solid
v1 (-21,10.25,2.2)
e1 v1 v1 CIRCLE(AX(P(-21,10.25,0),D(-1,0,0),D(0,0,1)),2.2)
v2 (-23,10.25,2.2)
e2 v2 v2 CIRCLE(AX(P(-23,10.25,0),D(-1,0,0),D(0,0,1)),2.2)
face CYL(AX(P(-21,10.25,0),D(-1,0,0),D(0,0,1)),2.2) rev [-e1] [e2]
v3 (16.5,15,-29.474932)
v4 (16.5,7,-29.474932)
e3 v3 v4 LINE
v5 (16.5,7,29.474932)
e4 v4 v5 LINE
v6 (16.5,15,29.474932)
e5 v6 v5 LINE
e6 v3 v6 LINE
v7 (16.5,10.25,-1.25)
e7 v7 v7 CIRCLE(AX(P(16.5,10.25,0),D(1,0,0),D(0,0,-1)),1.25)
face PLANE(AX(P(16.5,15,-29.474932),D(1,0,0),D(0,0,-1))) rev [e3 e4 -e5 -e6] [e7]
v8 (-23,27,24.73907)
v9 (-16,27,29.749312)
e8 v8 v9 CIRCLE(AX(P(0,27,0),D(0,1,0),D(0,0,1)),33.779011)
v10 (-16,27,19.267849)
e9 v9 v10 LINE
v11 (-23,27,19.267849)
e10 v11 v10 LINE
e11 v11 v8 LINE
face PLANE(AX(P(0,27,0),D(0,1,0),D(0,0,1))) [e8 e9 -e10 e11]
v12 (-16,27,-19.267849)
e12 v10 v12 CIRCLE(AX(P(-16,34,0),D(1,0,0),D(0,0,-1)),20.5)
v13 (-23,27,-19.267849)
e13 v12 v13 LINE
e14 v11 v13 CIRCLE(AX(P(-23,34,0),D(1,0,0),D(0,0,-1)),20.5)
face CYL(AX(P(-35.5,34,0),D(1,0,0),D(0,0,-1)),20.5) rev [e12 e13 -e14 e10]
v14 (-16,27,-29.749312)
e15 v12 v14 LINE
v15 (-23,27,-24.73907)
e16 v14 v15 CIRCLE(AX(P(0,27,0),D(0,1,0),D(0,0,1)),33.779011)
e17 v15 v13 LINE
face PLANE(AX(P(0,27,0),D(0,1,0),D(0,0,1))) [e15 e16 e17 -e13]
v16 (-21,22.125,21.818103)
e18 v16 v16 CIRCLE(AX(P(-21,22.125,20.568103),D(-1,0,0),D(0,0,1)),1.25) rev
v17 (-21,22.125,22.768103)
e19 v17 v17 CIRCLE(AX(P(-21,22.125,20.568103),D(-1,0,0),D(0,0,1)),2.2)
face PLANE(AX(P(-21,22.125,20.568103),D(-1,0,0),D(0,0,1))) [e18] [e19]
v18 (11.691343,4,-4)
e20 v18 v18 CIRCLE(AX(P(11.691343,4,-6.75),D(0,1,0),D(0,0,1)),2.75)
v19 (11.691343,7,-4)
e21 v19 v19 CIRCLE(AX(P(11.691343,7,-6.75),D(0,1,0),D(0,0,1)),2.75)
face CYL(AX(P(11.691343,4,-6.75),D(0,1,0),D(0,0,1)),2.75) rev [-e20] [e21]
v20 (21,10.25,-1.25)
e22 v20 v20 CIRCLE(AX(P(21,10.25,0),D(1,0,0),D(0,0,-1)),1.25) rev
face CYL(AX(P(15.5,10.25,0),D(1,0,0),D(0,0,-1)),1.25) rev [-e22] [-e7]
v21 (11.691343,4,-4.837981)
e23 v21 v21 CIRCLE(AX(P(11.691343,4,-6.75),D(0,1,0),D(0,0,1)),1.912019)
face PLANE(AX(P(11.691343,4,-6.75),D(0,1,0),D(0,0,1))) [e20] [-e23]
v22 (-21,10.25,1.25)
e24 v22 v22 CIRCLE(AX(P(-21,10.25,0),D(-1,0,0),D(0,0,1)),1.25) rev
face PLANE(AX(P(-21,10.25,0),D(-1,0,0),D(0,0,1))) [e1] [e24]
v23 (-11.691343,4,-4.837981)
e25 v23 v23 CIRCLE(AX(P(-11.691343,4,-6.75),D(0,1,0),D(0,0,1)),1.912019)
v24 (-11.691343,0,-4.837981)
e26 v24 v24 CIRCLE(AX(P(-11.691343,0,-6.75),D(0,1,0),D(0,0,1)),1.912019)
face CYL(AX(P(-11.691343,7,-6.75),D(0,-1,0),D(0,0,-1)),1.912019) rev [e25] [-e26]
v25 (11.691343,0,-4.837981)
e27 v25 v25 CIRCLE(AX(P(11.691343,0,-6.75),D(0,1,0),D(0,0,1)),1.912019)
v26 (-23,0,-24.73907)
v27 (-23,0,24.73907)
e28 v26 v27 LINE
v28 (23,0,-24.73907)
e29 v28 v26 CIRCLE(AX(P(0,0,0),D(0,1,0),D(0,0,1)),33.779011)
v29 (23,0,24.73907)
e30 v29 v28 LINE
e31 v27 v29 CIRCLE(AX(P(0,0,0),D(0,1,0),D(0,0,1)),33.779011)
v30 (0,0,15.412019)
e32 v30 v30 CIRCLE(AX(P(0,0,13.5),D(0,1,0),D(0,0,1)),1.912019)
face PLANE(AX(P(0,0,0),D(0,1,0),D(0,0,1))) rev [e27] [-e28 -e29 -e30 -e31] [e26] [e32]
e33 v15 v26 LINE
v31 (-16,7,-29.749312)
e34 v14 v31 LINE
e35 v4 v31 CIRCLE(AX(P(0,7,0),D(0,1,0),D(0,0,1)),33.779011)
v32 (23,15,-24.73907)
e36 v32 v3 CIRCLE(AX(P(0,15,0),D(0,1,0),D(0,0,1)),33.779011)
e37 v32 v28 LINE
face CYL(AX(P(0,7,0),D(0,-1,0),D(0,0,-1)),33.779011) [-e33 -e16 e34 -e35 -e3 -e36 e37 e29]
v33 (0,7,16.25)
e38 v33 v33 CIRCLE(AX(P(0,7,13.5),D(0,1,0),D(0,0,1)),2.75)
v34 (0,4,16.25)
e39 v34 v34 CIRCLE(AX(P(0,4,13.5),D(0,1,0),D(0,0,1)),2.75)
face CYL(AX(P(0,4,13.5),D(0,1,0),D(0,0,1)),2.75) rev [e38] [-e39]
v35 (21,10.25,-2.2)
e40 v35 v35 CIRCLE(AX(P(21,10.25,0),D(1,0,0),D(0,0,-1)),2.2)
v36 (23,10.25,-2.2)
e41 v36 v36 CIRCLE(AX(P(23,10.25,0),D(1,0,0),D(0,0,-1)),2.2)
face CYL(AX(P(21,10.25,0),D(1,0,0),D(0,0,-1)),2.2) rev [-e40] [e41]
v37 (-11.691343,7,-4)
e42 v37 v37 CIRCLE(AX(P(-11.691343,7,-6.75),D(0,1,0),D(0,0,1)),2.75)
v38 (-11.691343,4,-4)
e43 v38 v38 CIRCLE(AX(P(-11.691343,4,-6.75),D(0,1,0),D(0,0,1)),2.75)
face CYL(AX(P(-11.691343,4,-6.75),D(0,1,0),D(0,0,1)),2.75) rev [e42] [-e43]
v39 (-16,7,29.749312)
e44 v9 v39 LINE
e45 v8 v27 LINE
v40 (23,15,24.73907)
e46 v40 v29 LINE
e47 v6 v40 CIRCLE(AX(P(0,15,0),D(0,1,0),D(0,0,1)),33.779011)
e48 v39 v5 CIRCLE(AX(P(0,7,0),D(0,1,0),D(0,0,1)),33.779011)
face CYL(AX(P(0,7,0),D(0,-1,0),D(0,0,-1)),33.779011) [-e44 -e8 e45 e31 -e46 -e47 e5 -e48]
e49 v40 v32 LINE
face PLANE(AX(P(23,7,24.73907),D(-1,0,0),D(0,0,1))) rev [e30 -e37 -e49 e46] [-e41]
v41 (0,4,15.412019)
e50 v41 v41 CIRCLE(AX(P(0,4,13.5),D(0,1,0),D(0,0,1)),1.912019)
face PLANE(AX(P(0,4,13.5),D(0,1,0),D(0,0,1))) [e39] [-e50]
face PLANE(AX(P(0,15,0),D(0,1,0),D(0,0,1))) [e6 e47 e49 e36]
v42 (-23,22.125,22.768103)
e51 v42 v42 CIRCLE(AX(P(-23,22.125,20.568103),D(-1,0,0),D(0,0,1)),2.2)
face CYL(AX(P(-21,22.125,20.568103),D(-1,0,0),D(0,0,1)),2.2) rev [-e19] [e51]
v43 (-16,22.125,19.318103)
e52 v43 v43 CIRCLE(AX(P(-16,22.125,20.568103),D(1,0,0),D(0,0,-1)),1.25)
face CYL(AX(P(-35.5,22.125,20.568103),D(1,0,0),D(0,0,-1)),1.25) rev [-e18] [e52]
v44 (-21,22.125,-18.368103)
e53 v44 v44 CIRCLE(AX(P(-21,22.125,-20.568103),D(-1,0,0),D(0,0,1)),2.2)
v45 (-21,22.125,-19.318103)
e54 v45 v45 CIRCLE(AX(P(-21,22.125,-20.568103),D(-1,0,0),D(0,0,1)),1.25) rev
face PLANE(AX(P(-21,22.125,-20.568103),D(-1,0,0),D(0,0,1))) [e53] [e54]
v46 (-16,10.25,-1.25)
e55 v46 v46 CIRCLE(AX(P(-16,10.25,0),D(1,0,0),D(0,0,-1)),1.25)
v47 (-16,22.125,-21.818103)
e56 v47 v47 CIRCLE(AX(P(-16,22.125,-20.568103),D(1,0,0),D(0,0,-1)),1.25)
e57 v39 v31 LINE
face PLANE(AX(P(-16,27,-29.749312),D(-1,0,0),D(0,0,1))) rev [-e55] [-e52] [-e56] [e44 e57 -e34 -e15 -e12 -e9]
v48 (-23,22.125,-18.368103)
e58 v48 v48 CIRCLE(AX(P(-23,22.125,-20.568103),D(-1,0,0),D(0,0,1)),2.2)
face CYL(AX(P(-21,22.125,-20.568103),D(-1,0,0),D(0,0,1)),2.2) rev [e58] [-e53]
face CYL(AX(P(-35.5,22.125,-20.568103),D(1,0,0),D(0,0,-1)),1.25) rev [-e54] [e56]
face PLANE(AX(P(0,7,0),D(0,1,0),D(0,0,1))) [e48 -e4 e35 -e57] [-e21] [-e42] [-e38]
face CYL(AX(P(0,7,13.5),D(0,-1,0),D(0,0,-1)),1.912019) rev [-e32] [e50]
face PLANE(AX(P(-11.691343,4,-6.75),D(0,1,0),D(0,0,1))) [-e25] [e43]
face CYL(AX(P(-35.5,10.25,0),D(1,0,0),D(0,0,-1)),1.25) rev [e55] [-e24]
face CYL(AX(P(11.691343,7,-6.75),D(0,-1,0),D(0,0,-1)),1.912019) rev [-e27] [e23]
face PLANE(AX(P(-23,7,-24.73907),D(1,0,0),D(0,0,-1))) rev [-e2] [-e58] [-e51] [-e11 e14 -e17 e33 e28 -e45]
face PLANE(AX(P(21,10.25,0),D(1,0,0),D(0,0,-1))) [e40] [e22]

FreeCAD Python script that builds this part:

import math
import FreeCAD as App
import Part
import Sketcher

doc = App.newDocument("Part")
params = doc.addObject("Spreadsheet::Sheet", "Params")
for row, (alias, value) in enumerate([
    ("pad1_length", "7 mm"),
    ("sketch2_diameter", "5.5 mm"),
    ("pocket1_length", "3 mm"),
    ("pad2_length", "20 mm"),
    ("sketch4_diameter", "41 mm"),
    ("pocket2_length", "19.5 mm"),
    ("sketch5_diameter", "2.5 mm"),
    ("pocket3_length", "19.5 mm"),
    ("sketch6_diameter", "4.4 mm"),
    ("pocket4_length", "2 mm"),
    ("pad3_length", "8 mm"),
    ("sketch8_diameter", "2.5 mm"),
    ("pocket5_length", "7.5 mm"),
    ("sketch9_diameter", "4.4 mm"),
    ("pocket6_length", "2 mm"),
], start=1):
    params.set(f"A{row}", alias)
    params.set(f"B{row}", "=" + value)
    params.setAlias(f"B{row}", alias)

body = doc.addObject("PartDesign::Body", "Body")

sketch1 = body.newObject("Sketcher::SketchObject", "Sketch")
sketch1.AttachmentSupport = (doc.getObject("XZ_Plane"), [""])
sketch1.MapMode = "FlatFace"
sketch1.addGeometry(Part.LineSegment(App.Vector(-23, -24.7, 0), App.Vector(-23, 24.7, 0)), False)
sketch1.addGeometry(Part.ArcOfCircle(Part.Circle(App.Vector(0, 0, 0), App.Vector(0, 0, 1), 33.8), math.radians(47), math.radians(133)), False)
sketch1.addGeometry(Part.LineSegment(App.Vector(23, 24.7, 0), App.Vector(23, -24.7, 0)), False)
sketch1.addGeometry(Part.ArcOfCircle(Part.Circle(App.Vector(0, 0, 0), App.Vector(0, 0, 1), 33.8), math.radians(-133), math.radians(-47)), False)
sketch1.addGeometry(Part.Circle(App.Vector(0, 13.5, 0), App.Vector(0, 0, 1), 1.9), False)
sketch1.addGeometry(Part.Circle(App.Vector(-11.7, -6.8, 0), App.Vector(0, 0, 1), 1.9), False)
sketch1.addGeometry(Part.Circle(App.Vector(11.7, -6.8, 0), App.Vector(0, 0, 1), 1.9), False)
sketch1.addConstraint(Sketcher.Constraint("Coincident", 0, 2, 1, 2))
sketch1.addConstraint(Sketcher.Constraint("Coincident", 1, 1, 2, 1))
sketch1.addConstraint(Sketcher.Constraint("Coincident", 2, 2, 3, 2))
sketch1.addConstraint(Sketcher.Constraint("Coincident", 3, 1, 0, 1))
sketch1.addConstraint(Sketcher.Constraint("Vertical", 0))
sketch1.addConstraint(Sketcher.Constraint("Vertical", 2))
sketch1.addConstraint(Sketcher.Constraint("Coincident", 1, 3, -1, 1))
sketch1.addConstraint(Sketcher.Constraint("Coincident", 3, 3, -1, 1))
sketch1.addConstraint(Sketcher.Constraint("Equal", 1, 3))
sketch1.addConstraint(Sketcher.Constraint("Equal", 4, 5))
sketch1.addConstraint(Sketcher.Constraint("Equal", 5, 6))
sketch1.addConstraint(Sketcher.Constraint("Symmetric", 5, 3, 6, 3, -2))
sketch1.addConstraint(Sketcher.Constraint("PointOnObject", 4, 3, -2))
sketch1.addConstraint(Sketcher.Constraint("Horizontal", 0, 2, 1, 1))
sketch1.addConstraint(Sketcher.Constraint("DistanceX", 0, 2, -1, 1, 23.0))
sketch1.addConstraint(Sketcher.Constraint("DistanceY", -1, 1, 4, 3, 13.5))
sketch1.addConstraint(Sketcher.Constraint("Diameter", 4, 3.824039))
sketch1.addConstraint(Sketcher.Constraint("DistanceY", 5, 3, -1, 1, 6.75))
sketch1.addConstraint(Sketcher.Constraint("Radius", 1, 33.779011))
sketch1.addConstraint(Sketcher.Constraint("DistanceX", 5, 3, -1, 1, 11.691343))
pad1 = body.newObject("PartDesign::Pad", "Pad")
pad1.Profile = sketch1
pad1.setExpression("Length", "Params.pad1_length")
pad1.Reversed = True

sketch2 = body.newObject("Sketcher::SketchObject", "Sketch001")
sketch2.AttachmentSupport = (doc.getObject("XZ_Plane"), [""])
sketch2.MapMode = "FlatFace"
sketch2.AttachmentOffset = App.Placement(App.Vector(0, 0, -7), App.Rotation())
sketch2.addGeometry(Part.Circle(App.Vector(-11.7, -6.8, 0), App.Vector(0, 0, 1), 2.8), False)
sketch2.addGeometry(Part.Circle(App.Vector(11.7, -6.8, 0), App.Vector(0, 0, 1), 2.8), False)
sketch2.addGeometry(Part.Circle(App.Vector(0, 13.5, 0), App.Vector(0, 0, 1), 2.8), False)
sketch2.addConstraint(Sketcher.Constraint("Equal", 0, 1))
sketch2.addConstraint(Sketcher.Constraint("Equal", 1, 2))
sketch2.addConstraint(Sketcher.Constraint("Symmetric", 0, 3, 1, 3, -2))
sketch2.addConstraint(Sketcher.Constraint("PointOnObject", 2, 3, -2))
sketch2.addConstraint(Sketcher.Constraint("Diameter", 0, 5.5))
sketch2.addConstraint(Sketcher.Constraint("DistanceY", -1, 1, 2, 3, 13.5))
sketch2.addConstraint(Sketcher.Constraint("DistanceY", 0, 3, -1, 1, 6.75))
sketch2.addConstraint(Sketcher.Constraint("DistanceX", 0, 3, -1, 1, 11.691343))
sketch2.setExpression("Constraints[4]", "Params.sketch2_diameter")
pocket1 = body.newObject("PartDesign::Pocket", "Pocket")
pocket1.Profile = sketch2
pocket1.setExpression("Length", "Params.pocket1_length")
pocket1.Reversed = True

sketch3 = body.newObject("Sketcher::SketchObject", "Sketch002")
sketch3.AttachmentSupport = (doc.getObject("XZ_Plane"), [""])
sketch3.MapMode = "FlatFace"
sketch3.AttachmentOffset = App.Placement(App.Vector(0, 0, -7), App.Rotation())
sketch3.addGeometry(Part.LineSegment(App.Vector(-16, 30, 0), App.Vector(-16, -30, 0)), False)
sketch3.addGeometry(Part.ArcOfCircle(Part.Circle(App.Vector(0, 0, 0), App.Vector(0, 0, 1), 34), math.radians(-132.91), math.radians(-118.27)), False)
sketch3.addGeometry(Part.LineSegment(App.Vector(-23, -25, 0), App.Vector(-23, 25, 0)), False)
sketch3.addGeometry(Part.ArcOfCircle(Part.Circle(App.Vector(0, 0, 0), App.Vector(0, 0, 1), 34), math.radians(118.27), math.radians(132.91)), False)
sketch3.addConstraint(Sketcher.Constraint("Coincident", 0, 2, 1, 2))
sketch3.addConstraint(Sketcher.Constraint("Coincident", 1, 1, 2, 1))
sketch3.addConstraint(Sketcher.Constraint("Coincident", 2, 2, 3, 2))
sketch3.addConstraint(Sketcher.Constraint("Coincident", 3, 1, 0, 1))
sketch3.addConstraint(Sketcher.Constraint("Vertical", 0))
sketch3.addConstraint(Sketcher.Constraint("Vertical", 2))
sketch3.addConstraint(Sketcher.Constraint("Coincident", 1, 3, -1, 1))
sketch3.addConstraint(Sketcher.Constraint("Coincident", 3, 3, -1, 1))
sketch3.addConstraint(Sketcher.Constraint("Equal", 1, 3))
sketch3.addConstraint(Sketcher.Constraint("DistanceX", 0, 2, -1, 1, 16.0))
sketch3.addConstraint(Sketcher.Constraint("DistanceX", 1, 1, -1, 1, 23.0))
sketch3.addConstraint(Sketcher.Constraint("Radius", 1, 33.779011))
pad2 = body.newObject("PartDesign::Pad", "Pad001")
pad2.Profile = sketch3
pad2.setExpression("Length", "Params.pad2_length")
pad2.Reversed = True

sketch4 = body.newObject("Sketcher::SketchObject", "Sketch003")
sketch4.AttachmentSupport = (doc.getObject("YZ_Plane"), [""])
sketch4.MapMode = "FlatFace"
sketch4.AttachmentOffset = App.Placement(App.Vector(0, 0, -16), App.Rotation())
sketch4.addGeometry(Part.Circle(App.Vector(34, 0, 0), App.Vector(0, 0, 1), 20), False)
sketch4.addConstraint(Sketcher.Constraint("PointOnObject", 0, 3, -1))
sketch4.addConstraint(Sketcher.Constraint("Diameter", 0, 41.0))
sketch4.addConstraint(Sketcher.Constraint("DistanceX", -1, 1, 0, 3, 34.0))
sketch4.setExpression("Constraints[1]", "Params.sketch4_diameter")
pocket2 = body.newObject("PartDesign::Pocket", "Pocket001")
pocket2.Profile = sketch4
pocket2.setExpression("Length", "Params.pocket2_length")

sketch5 = body.newObject("Sketcher::SketchObject", "Sketch004")
sketch5.AttachmentSupport = (doc.getObject("YZ_Plane"), [""])
sketch5.MapMode = "FlatFace"
sketch5.AttachmentOffset = App.Placement(App.Vector(0, 0, -16), App.Rotation())
sketch5.addGeometry(Part.Circle(App.Vector(10.2, 0, 0), App.Vector(0, 0, 1), 1.2), False)
sketch5.addGeometry(Part.Circle(App.Vector(22.1, 20.6, 0), App.Vector(0, 0, 1), 1.2), False)
sketch5.addGeometry(Part.Circle(App.Vector(22.1, -20.6, 0), App.Vector(0, 0, 1), 1.2), False)
sketch5.addConstraint(Sketcher.Constraint("Equal", 0, 1))
sketch5.addConstraint(Sketcher.Constraint("Equal", 1, 2))
sketch5.addConstraint(Sketcher.Constraint("Symmetric", 1, 3, 2, 3, -1))
sketch5.addConstraint(Sketcher.Constraint("PointOnObject", 0, 3, -1))
sketch5.addConstraint(Sketcher.Constraint("Diameter", 0, 2.5))
sketch5.addConstraint(Sketcher.Constraint("DistanceX", -1, 1, 0, 3, 10.25))
sketch5.addConstraint(Sketcher.Constraint("DistanceX", -1, 1, 1, 3, 22.125))
sketch5.addConstraint(Sketcher.Constraint("DistanceY", -1, 1, 1, 3, 20.568103))
sketch5.setExpression("Constraints[4]", "Params.sketch5_diameter")
pocket3 = body.newObject("PartDesign::Pocket", "Pocket002")
pocket3.Profile = sketch5
pocket3.setExpression("Length", "Params.pocket3_length")

sketch6 = body.newObject("Sketcher::SketchObject", "Sketch005")
sketch6.AttachmentSupport = (doc.getObject("YZ_Plane"), [""])
sketch6.MapMode = "FlatFace"
sketch6.AttachmentOffset = App.Placement(App.Vector(0, 0, -23), App.Rotation())
sketch6.addGeometry(Part.Circle(App.Vector(10.2, 0, 0), App.Vector(0, 0, 1), 2.2), False)
sketch6.addGeometry(Part.Circle(App.Vector(22.1, -20.6, 0), App.Vector(0, 0, 1), 2.2), False)
sketch6.addGeometry(Part.Circle(App.Vector(22.1, 20.6, 0), App.Vector(0, 0, 1), 2.2), False)
sketch6.addConstraint(Sketcher.Constraint("Equal", 0, 1))
sketch6.addConstraint(Sketcher.Constraint("Equal", 1, 2))
sketch6.addConstraint(Sketcher.Constraint("Symmetric", 1, 3, 2, 3, -1))
sketch6.addConstraint(Sketcher.Constraint("PointOnObject", 0, 3, -1))
sketch6.addConstraint(Sketcher.Constraint("Diameter", 0, 4.4))
sketch6.addConstraint(Sketcher.Constraint("DistanceX", -1, 1, 0, 3, 10.25))
sketch6.addConstraint(Sketcher.Constraint("DistanceX", -1, 1, 1, 3, 22.125))
sketch6.addConstraint(Sketcher.Constraint("DistanceY", 1, 3, -1, 1, 20.568103))
sketch6.setExpression("Constraints[4]", "Params.sketch6_diameter")
pocket4 = body.newObject("PartDesign::Pocket", "Pocket003")
pocket4.Profile = sketch6
pocket4.setExpression("Length", "Params.pocket4_length")
pocket4.Reversed = True

sketch7 = body.newObject("Sketcher::SketchObject", "Sketch006")
sketch7.AttachmentSupport = (doc.getObject("XZ_Plane"), [""])
sketch7.MapMode = "FlatFace"
sketch7.AttachmentOffset = App.Placement(App.Vector(0, 0, -7), App.Rotation())
sketch7.addGeometry(Part.LineSegment(App.Vector(16, -29, 0), App.Vector(16, 29, 0)), False)
sketch7.addGeometry(Part.ArcOfCircle(Part.Circle(App.Vector(0, 0, 0), App.Vector(0, 0, 1), 34), math.radians(47.09), math.radians(60.76)), False)
sketch7.addGeometry(Part.LineSegment(App.Vector(23, 25, 0), App.Vector(23, -25, 0)), False)
sketch7.addGeometry(Part.ArcOfCircle(Part.Circle(App.Vector(0, 0, 0), App.Vector(0, 0, 1), 34), math.radians(-60.76), math.radians(-47.09)), False)
sketch7.addConstraint(Sketcher.Constraint("Coincident", 0, 2, 1, 2))
sketch7.addConstraint(Sketcher.Constraint("Coincident", 1, 1, 2, 1))
sketch7.addConstraint(Sketcher.Constraint("Coincident", 2, 2, 3, 2))
sketch7.addConstraint(Sketcher.Constraint("Coincident", 3, 1, 0, 1))
sketch7.addConstraint(Sketcher.Constraint("Vertical", 0))
sketch7.addConstraint(Sketcher.Constraint("Vertical", 2))
sketch7.addConstraint(Sketcher.Constraint("Coincident", 1, 3, -1, 1))
sketch7.addConstraint(Sketcher.Constraint("Coincident", 3, 3, -1, 1))
sketch7.addConstraint(Sketcher.Constraint("Equal", 1, 3))
sketch7.addConstraint(Sketcher.Constraint("DistanceX", -1, 1, 1, 1, 23.0))
sketch7.addConstraint(Sketcher.Constraint("DistanceX", -1, 1, 0, 2, 16.5))
sketch7.addConstraint(Sketcher.Constraint("Radius", 1, 33.779011))
pad3 = body.newObject("PartDesign::Pad", "Pad002")
pad3.Profile = sketch7
pad3.setExpression("Length", "Params.pad3_length")
pad3.Reversed = True

sketch8 = body.newObject("Sketcher::SketchObject", "Sketch007")
sketch8.AttachmentSupport = (doc.getObject("YZ_Plane"), [""])
sketch8.MapMode = "FlatFace"
sketch8.AttachmentOffset = App.Placement(App.Vector(0, 0, 23), App.Rotation())
sketch8.addGeometry(Part.Circle(App.Vector(10.2, 0, 0), App.Vector(0, 0, 1), 1.2), False)
sketch8.addConstraint(Sketcher.Constraint("PointOnObject", 0, 3, -1))
sketch8.addConstraint(Sketcher.Constraint("Diameter", 0, 2.5))
sketch8.addConstraint(Sketcher.Constraint("DistanceX", -1, 1, 0, 3, 10.25))
sketch8.setExpression("Constraints[1]", "Params.sketch8_diameter")
pocket5 = body.newObject("PartDesign::Pocket", "Pocket004")
pocket5.Profile = sketch8
pocket5.setExpression("Length", "Params.pocket5_length")

sketch9 = body.newObject("Sketcher::SketchObject", "Sketch008")
sketch9.AttachmentSupport = (doc.getObject("YZ_Plane"), [""])
sketch9.MapMode = "FlatFace"
sketch9.AttachmentOffset = App.Placement(App.Vector(0, 0, 21), App.Rotation())
sketch9.addGeometry(Part.Circle(App.Vector(10.2, 0, 0), App.Vector(0, 0, 1), 2.2), False)
sketch9.addConstraint(Sketcher.Constraint("PointOnObject", 0, 3, -1))
sketch9.addConstraint(Sketcher.Constraint("Diameter", 0, 4.4))
sketch9.addConstraint(Sketcher.Constraint("DistanceX", -1, 1, 0, 3, 10.25))
sketch9.setExpression("Constraints[1]", "Params.sketch9_diameter")
pocket6 = body.newObject("PartDesign::Pocket", "Pocket005")
pocket6.Profile = sketch9
pocket6.setExpression("Length", "Params.pocket6_length")
pocket6.Reversed = True

doc.recompute()
